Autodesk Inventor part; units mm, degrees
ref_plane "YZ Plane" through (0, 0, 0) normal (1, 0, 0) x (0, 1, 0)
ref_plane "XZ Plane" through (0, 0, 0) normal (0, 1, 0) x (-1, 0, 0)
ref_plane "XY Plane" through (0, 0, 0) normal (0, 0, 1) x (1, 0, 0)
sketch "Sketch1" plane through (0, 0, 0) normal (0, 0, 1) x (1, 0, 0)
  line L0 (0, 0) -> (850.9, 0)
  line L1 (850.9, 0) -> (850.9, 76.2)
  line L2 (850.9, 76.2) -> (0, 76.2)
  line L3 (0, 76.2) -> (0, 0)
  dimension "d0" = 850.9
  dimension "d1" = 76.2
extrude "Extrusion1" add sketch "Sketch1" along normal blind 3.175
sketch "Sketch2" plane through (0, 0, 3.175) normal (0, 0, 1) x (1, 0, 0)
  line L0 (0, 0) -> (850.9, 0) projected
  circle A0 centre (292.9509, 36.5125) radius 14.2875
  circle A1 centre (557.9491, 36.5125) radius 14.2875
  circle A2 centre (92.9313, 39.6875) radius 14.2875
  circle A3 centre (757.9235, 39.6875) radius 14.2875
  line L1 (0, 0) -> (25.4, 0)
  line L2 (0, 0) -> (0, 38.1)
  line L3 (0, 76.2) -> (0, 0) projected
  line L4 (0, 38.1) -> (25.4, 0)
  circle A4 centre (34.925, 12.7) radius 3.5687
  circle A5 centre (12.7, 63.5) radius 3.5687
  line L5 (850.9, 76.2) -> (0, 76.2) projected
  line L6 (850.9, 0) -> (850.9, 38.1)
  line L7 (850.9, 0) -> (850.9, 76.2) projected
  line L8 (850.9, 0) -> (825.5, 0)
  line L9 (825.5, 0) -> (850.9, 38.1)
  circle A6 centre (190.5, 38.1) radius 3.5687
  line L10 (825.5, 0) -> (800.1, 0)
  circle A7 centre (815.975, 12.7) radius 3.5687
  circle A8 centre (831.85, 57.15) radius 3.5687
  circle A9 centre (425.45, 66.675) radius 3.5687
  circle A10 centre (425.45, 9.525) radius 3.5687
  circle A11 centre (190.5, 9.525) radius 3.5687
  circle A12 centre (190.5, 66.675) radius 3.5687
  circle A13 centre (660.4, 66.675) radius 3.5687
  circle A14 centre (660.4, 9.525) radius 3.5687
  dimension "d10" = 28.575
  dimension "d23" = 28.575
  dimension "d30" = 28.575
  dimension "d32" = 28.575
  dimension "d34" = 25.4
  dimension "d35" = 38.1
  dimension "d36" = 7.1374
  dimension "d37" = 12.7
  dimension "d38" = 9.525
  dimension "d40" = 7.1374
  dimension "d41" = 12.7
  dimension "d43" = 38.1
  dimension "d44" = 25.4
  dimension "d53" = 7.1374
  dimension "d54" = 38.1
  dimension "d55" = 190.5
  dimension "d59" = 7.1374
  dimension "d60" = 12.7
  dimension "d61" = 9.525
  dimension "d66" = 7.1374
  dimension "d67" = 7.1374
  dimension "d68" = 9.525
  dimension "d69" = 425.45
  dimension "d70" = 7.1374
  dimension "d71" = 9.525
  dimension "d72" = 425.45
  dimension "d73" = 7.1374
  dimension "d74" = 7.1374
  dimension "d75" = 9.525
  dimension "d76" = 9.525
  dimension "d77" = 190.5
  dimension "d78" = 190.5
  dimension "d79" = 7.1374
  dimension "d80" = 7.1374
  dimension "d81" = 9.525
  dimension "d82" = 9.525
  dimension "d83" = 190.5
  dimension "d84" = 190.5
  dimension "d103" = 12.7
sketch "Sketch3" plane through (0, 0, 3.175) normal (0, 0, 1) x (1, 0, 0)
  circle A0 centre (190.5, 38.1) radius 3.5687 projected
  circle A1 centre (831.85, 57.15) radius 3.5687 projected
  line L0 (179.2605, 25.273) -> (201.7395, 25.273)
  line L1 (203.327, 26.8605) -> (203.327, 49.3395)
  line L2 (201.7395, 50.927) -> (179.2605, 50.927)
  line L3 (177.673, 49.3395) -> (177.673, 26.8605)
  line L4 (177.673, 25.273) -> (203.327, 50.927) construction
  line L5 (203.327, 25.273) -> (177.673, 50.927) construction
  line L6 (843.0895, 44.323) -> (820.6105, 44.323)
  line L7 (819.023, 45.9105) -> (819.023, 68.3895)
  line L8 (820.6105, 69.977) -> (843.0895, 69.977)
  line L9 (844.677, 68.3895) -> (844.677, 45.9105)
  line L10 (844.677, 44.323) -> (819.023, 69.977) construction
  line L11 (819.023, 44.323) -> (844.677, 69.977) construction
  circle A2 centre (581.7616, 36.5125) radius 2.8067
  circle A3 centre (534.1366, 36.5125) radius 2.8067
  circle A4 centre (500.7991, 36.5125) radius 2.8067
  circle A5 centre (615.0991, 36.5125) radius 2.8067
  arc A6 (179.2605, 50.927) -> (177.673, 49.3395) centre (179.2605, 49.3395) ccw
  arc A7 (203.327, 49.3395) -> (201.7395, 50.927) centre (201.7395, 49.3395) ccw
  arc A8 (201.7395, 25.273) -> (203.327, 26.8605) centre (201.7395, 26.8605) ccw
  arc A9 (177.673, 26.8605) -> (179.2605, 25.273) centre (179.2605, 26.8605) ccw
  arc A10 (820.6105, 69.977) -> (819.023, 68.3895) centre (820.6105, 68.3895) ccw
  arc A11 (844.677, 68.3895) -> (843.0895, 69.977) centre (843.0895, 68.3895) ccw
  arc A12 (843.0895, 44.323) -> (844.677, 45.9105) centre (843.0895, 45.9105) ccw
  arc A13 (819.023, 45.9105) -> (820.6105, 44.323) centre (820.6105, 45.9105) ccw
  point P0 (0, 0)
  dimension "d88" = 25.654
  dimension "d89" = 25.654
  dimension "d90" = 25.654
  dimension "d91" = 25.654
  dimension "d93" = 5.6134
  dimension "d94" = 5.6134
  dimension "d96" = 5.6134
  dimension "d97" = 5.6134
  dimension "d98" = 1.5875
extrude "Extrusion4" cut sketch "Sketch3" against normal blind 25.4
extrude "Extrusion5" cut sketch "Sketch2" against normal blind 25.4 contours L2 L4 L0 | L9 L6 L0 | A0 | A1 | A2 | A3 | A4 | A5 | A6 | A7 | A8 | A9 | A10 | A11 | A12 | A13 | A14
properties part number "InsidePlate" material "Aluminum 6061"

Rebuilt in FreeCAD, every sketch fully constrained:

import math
import FreeCAD as App
import Part
import Sketcher

V = App.Vector
Q = App.Units.Quantity


def add_polygon(sketch, points):
    """Adds a closed chain of lines whose ends are joined by coincident constraints."""
    first, n = sketch.GeometryCount, len(points)
    for a, b in zip(points, points[1:] + points[:1]):
        sketch.addGeometry(Part.LineSegment(App.Vector(*a, 0), App.Vector(*b, 0)), False)
    for i in range(n):
        sketch.addConstraint(Sketcher.Constraint("Coincident", first + i, 2, first + (i + 1) % n, 1))

doc = App.newDocument("Part")
params = doc.addObject("Spreadsheet::Sheet", "Params")
for row, (alias, value) in enumerate([
    ("sketch1_height", "3 in"),
    ("sketch1_width", "33.5 in"),
    ("pad1_length", "0.125 in"),
    ("sketch2_diameter", "0.221 in"),
    ("sketch2_radius", "0.0625 in"),
    ("sketch2_diameter2", "0.281 in"),
    ("sketch2_width", "0.885 in"),
    ("pocket1_length", "1 in"),
    ("sketch3_width", "1 in"),
    ("sketch3_diameter", "1.125 in"),
    ("sketch3_diameter2", "0.281 in"),
    ("sketch3_height", "1.5 in"),
    ("pocket2_length", "1 in"),
], start=1):
    params.set(f"A{row}", alias)
    params.set(f"B{row}", "=" + value)
    params.setAlias(f"B{row}", alias)

body = doc.addObject("PartDesign::Body", "Body")
body.AllowCompound = True

# Sketch on XY plane
sketch1 = body.newObject("Sketcher::SketchObject", "Sketch")
sketch1.AttachmentSupport = (doc.getObject("XY_Plane"), [""])
sketch1.MapMode = "FlatFace"
add_polygon(sketch1, [(0, 76.2), (0, 0), (850.9, 0), (850.9, 76.2)])  # lines 0-3
sketch1.addConstraint([
    Sketcher.Constraint("Vertical", 0),
    Sketcher.Constraint("Horizontal", 1),
    Sketcher.Constraint("Vertical", 2),
    Sketcher.Constraint("Horizontal", 3),
    Sketcher.Constraint("Coincident", 0, 2, -1, 1),
    Sketcher.Constraint("DistanceY", 0, 2, 0, 1, Q("3 in")),
    Sketcher.Constraint("DistanceX", 1, 1, 1, 2, Q("33.5 in")),
])
sketch1.setExpression("Constraints[9]", "Params.sketch1_height")
sketch1.setExpression("Constraints[10]", "Params.sketch1_width")
pad1 = body.newObject("PartDesign::Pad", "Pad")
pad1.Profile = sketch1
pad1.setExpression("Length", "Params.pad1_length")

# Sketch on XY plane
sketch2 = body.newObject("Sketcher::SketchObject", "Sketch001")
sketch2.AttachmentSupport = (doc.getObject("XY_Plane"), [""])
sketch2.MapMode = "FlatFace"
sketch2.AttachmentOffset = App.Placement(V(0, 0, 0.125 * 25.4), App.Rotation())
sketch2.addGeometry([
    Part.ArcOfCircle(Part.Circle(V(179.2605, 26.8605, 0), V(0, 0, 1), 1.5875), math.radians(180), math.radians(270)),  # 0
    Part.LineSegment(V(179.2605, 25.273, 0), V(201.7395, 25.273, 0)),  # 1
    Part.ArcOfCircle(Part.Circle(V(201.7395, 26.8605, 0), V(0, 0, 1), 1.5875), math.radians(-90), math.radians(0)),  # 2
    Part.LineSegment(V(203.327, 26.8605, 0), V(203.327, 49.3395, 0)),  # 3
    Part.ArcOfCircle(Part.Circle(V(201.7395, 49.3395, 0), V(0, 0, 1), 1.5875), math.radians(0), math.radians(90)),  # 4
    Part.LineSegment(V(201.7395, 50.927, 0), V(179.2605, 50.927, 0)),  # 5
    Part.ArcOfCircle(Part.Circle(V(179.2605, 49.3395, 0), V(0, 0, 1), 1.5875), math.radians(90), math.radians(180)),  # 6
    Part.LineSegment(V(177.673, 49.3395, 0), V(177.673, 26.8605, 0)),  # 7
    Part.Circle(V(190.5, 38.1, 0), V(0, 0, 1), 3.5687),  # 8
    Part.LineSegment(V(820.6105, 44.323, 0), V(843.0895, 44.323, 0)),  # 9
    Part.ArcOfCircle(Part.Circle(V(843.0895, 45.9105, 0), V(0, 0, 1), 1.5875), math.radians(-90), math.radians(0)),  # 10
    Part.LineSegment(V(844.677, 45.9105, 0), V(844.677, 68.3895, 0)),  # 11
    Part.ArcOfCircle(Part.Circle(V(843.0895, 68.3895, 0), V(0, 0, 1), 1.5875), math.radians(0), math.radians(90)),  # 12
    Part.LineSegment(V(843.0895, 69.977, 0), V(820.6105, 69.977, 0)),  # 13
    Part.ArcOfCircle(Part.Circle(V(820.6105, 68.3895, 0), V(0, 0, 1), 1.5875), math.radians(90), math.radians(180)),  # 14
    Part.LineSegment(V(819.023, 68.3895, 0), V(819.023, 45.9105, 0)),  # 15
    Part.ArcOfCircle(Part.Circle(V(820.6105, 45.9105, 0), V(0, 0, 1), 1.5875), math.radians(180), math.radians(270)),  # 16
    Part.Circle(V(831.85, 57.15, 0), V(0, 0, 1), 3.5687),  # 17
    Part.Circle(V(581.7616, 36.5125, 0), V(0, 0, 1), 2.8067),  # 18
    Part.Circle(V(534.1366, 36.5125, 0), V(0, 0, 1), 2.8067),  # 19
    Part.Circle(V(500.7991, 36.5125, 0), V(0, 0, 1), 2.8067),  # 20
    Part.Circle(V(615.0991, 36.5125, 0), V(0, 0, 1), 2.8067),  # 21
], False)
sketch2.addConstraint([
    Sketcher.Constraint("Tangent", 0, 2, 1, 1),
    Sketcher.Constraint("Tangent", 1, 2, 2, 1),
    Sketcher.Constraint("Tangent", 2, 2, 3, 1),
    Sketcher.Constraint("Tangent", 3, 2, 4, 1),
    Sketcher.Constraint("Tangent", 4, 2, 5, 1),
    Sketcher.Constraint("Tangent", 5, 2, 6, 1),
    Sketcher.Constraint("Tangent", 6, 2, 7, 1),
    Sketcher.Constraint("Tangent", 7, 2, 0, 1),
    Sketcher.Constraint("Tangent", 9, 2, 10, 1),
    Sketcher.Constraint("Tangent", 10, 2, 11, 1),
    Sketcher.Constraint("Tangent", 11, 2, 12, 1),
    Sketcher.Constraint("Tangent", 12, 2, 13, 1),
    Sketcher.Constraint("Tangent", 13, 2, 14, 1),
    Sketcher.Constraint("Tangent", 14, 2, 15, 1),
    Sketcher.Constraint("Tangent", 15, 2, 16, 1),
    Sketcher.Constraint("Tangent", 16, 2, 9, 1),
    Sketcher.Constraint("Horizontal", 1),
    Sketcher.Constraint("Vertical", 3),
    Sketcher.Constraint("Horizontal", 5),
    Sketcher.Constraint("Vertical", 7),
    Sketcher.Constraint("Horizontal", 9),
    Sketcher.Constraint("Vertical", 11),
    Sketcher.Constraint("Horizontal", 13),
    Sketcher.Constraint("Vertical", 15),
    Sketcher.Constraint("Equal", 0, 2),
    Sketcher.Constraint("Equal", 2, 4),
    Sketcher.Constraint("Equal", 4, 6),
    Sketcher.Constraint("Equal", 6, 10),
    Sketcher.Constraint("Equal", 10, 12),
    Sketcher.Constraint("Equal", 12, 14),
    Sketcher.Constraint("Equal", 14, 16),
    Sketcher.Constraint("Equal", 8, 17),
    Sketcher.Constraint("Equal", 18, 19),
    Sketcher.Constraint("Equal", 19, 20),
    Sketcher.Constraint("Equal", 20, 21),
    Sketcher.Constraint("Horizontal", 18, 3, 19, 3),
    Sketcher.Constraint("Horizontal", 19, 3, 20, 3),
    Sketcher.Constraint("Horizontal", 20, 3, 21, 3),
    Sketcher.Constraint("Equal", 5, 9),
    Sketcher.Constraint("Equal", 13, 3),
    Sketcher.Constraint("Equal", 7, 11),
    Sketcher.Constraint("Diameter", 18, Q("0.221 in")),
    Sketcher.Constraint("Radius", 0, Q("0.0625 in")),
    Sketcher.Constraint("Diameter", 8, Q("0.281 in")),
    Sketcher.Constraint("DistanceY", 20, 3, 8, 3, Q("0.0625 in")),
    Sketcher.Constraint("DistanceX", -1, 1, 8, 3, Q("7.5 in")),
    Sketcher.Constraint("DistanceY", -1, 1, 8, 3, Q("1.5 in")),
    Sketcher.Constraint("DistanceX", 20, 3, 21, 3, Q("4.5 in")),
    Sketcher.Constraint("DistanceX", 1, 1, 1, 2, Q("0.885 in")),
    Sketcher.Constraint("DistanceX", -1, 1, 17, 3, Q("32.75 in")),
    Sketcher.Constraint("DistanceY", -1, 1, 17, 3, Q("2.25 in")),
    Sketcher.Constraint("DistanceX", 4, 3, 10, 3, Q("25.25 in")),
    Sketcher.Constraint("DistanceY", 2, 3, 10, 3, Q("0.75 in")),
    Sketcher.Constraint("DistanceY", 18, 3, 16, 3, Q("0.37 in")),
    Sketcher.Constraint("DistanceX", -1, 1, 18, 3, Q("22.904 in")),
    Sketcher.Constraint("DistanceX", -1, 1, 19, 3, Q("21.029 in")),
    Sketcher.Constraint("DistanceX", -1, 1, 2, 2, Q("8.005 in")),
    Sketcher.Constraint("DistanceX", 20, 3, 19, 3, Q("1.3125 in")),
])
sketch2.setExpression("Constraints[41]", "Params.sketch2_diameter")
sketch2.setExpression("Constraints[42]", "Params.sketch2_radius")
sketch2.setExpression("Constraints[43]", "Params.sketch2_diameter2")
sketch2.setExpression("Constraints[48]", "Params.sketch2_width")
pocket1 = body.newObject("PartDesign::Pocket", "Pocket")
pocket1.Profile = sketch2
pocket1.setExpression("Length", "Params.pocket1_length")

# Sketch on XY plane
sketch3 = body.newObject("Sketcher::SketchObject", "Sketch002")
sketch3.AttachmentSupport = (doc.getObject("XY_Plane"), [""])
sketch3.MapMode = "FlatFace"
sketch3.AttachmentOffset = App.Placement(V(0, 0, 0.125 * 25.4), App.Rotation())
add_polygon(sketch3, [(0, 38.1), (0, 0), (25.4, 0)])  # lines 0-2
add_polygon(sketch3, [(850.9, 38.1), (825.5, 0), (850.9, 0)])  # lines 3-5
sketch3.addGeometry(Part.Circle(V(292.9509, 36.5125, 0), V(0, 0, 1), 14.2875), False)  # 6
sketch3.addGeometry(Part.Circle(V(557.9491, 36.5125, 0), V(0, 0, 1), 14.2875), False)  # 7
sketch3.addGeometry(Part.Circle(V(92.9313, 39.6875, 0), V(0, 0, 1), 14.2875), False)  # 8
sketch3.addGeometry(Part.Circle(V(757.9235, 39.6875, 0), V(0, 0, 1), 14.2875), False)  # 9
sketch3.addGeometry(Part.Circle(V(34.925, 12.7, 0), V(0, 0, 1), 3.5687), False)  # 10
sketch3.addGeometry(Part.Circle(V(12.7, 63.5, 0), V(0, 0, 1), 3.5687), False)  # 11
sketch3.addGeometry(Part.Circle(V(190.5, 38.1, 0), V(0, 0, 1), 3.5687), False)  # 12
sketch3.addGeometry(Part.Circle(V(815.975, 12.7, 0), V(0, 0, 1), 3.5687), False)  # 13
sketch3.addGeometry(Part.Circle(V(831.85, 57.15, 0), V(0, 0, 1), 3.5687), False)  # 14
sketch3.addGeometry(Part.Circle(V(425.45, 66.675, 0), V(0, 0, 1), 3.5687), False)  # 15
sketch3.addGeometry(Part.Circle(V(425.45, 9.525, 0), V(0, 0, 1), 3.5687), False)  # 16
sketch3.addGeometry(Part.Circle(V(190.5, 9.525, 0), V(0, 0, 1), 3.5687), False)  # 17
sketch3.addGeometry(Part.Circle(V(190.5, 66.675, 0), V(0, 0, 1), 3.5687), False)  # 18
sketch3.addGeometry(Part.Circle(V(660.4, 66.675, 0), V(0, 0, 1), 3.5687), False)  # 19
sketch3.addGeometry(Part.Circle(V(660.4, 9.525, 0), V(0, 0, 1), 3.5687), False)  # 20
sketch3.addConstraint([
    Sketcher.Constraint("Vertical", 0),
    Sketcher.Constraint("Horizontal", 1),
    Sketcher.Constraint("Horizontal", 4),
    Sketcher.Constraint("Vertical", 5),
    Sketcher.Constraint("Coincident", 0, 2, -1, 1),
    Sketcher.Constraint("Equal", 6, 7),
    Sketcher.Constraint("Equal", 7, 8),
    Sketcher.Constraint("Equal", 8, 9),
    Sketcher.Constraint("Equal", 10, 11),
    Sketcher.Constraint("Equal", 11, 12),
    Sketcher.Constraint("Equal", 12, 13),
    Sketcher.Constraint("Equal", 13, 14),
    Sketcher.Constraint("Equal", 14, 15),
    Sketcher.Constraint("Equal", 15, 16),
    Sketcher.Constraint("Equal", 16, 17),
    Sketcher.Constraint("Equal", 17, 18),
    Sketcher.Constraint("Equal", 18, 19),
    Sketcher.Constraint("Equal", 19, 20),
    Sketcher.Constraint("PointOnObject", 3, 2, -1),
    Sketcher.Constraint("Horizontal", 6, 3, 7, 3),
    Sketcher.Constraint("Horizontal", 8, 3, 9, 3),
    Sketcher.Constraint("Horizontal", 10, 3, 13, 3),
    Sketcher.Constraint("Horizontal", 16, 3, 17, 3),
    Sketcher.Constraint("Horizontal", 15, 3, 18, 3),
    Sketcher.Constraint("Horizontal", 18, 3, 19, 3),
    Sketcher.Constraint("Horizontal", 17, 3, 20, 3),
    Sketcher.Constraint("Horizontal", 12, 3, 2, 2),
    Sketcher.Constraint("Horizontal", 2, 2, 5, 2),
    Sketcher.Constraint("Vertical", 15, 3, 16, 3),
    Sketcher.Constraint("Vertical", 12, 3, 17, 3),
    Sketcher.Constraint("Vertical", 17, 3, 18, 3),
    Sketcher.Constraint("Vertical", 19, 3, 20, 3),
    Sketcher.Constraint("Equal", 1, 4),
    Sketcher.Constraint("DistanceX", 1, 1, 1, 2, Q("1 in")),
    Sketcher.Constraint("Diameter", 6, Q("1.125 in")),
    Sketcher.Constraint("Diameter", 10, Q("0.281 in")),
    Sketcher.Constraint("DistanceY", 0, 2, 0, 1, Q("1.5 in")),
    Sketcher.Constraint("DistanceY", 10, 3, 12, 3, Q("1 in")),
    Sketcher.Constraint("DistanceY", 12, 3, 11, 3, Q("1 in")),
    Sketcher.Constraint("DistanceX", -1, 1, 11, 3, Q("0.5 in")),
    Sketcher.Constraint("DistanceX", -1, 1, 12, 3, Q("7.5 in")),
    Sketcher.Constraint("DistanceX", 20, 3, 4, 2, Q("7.5 in")),
    Sketcher.Constraint("DistanceX", -1, 1, 15, 3, Q("16.75 in")),
    Sketcher.Constraint("DistanceY", -1, 1, 16, 3, Q("0.375 in")),
    Sketcher.Constraint("DistanceX", -1, 1, 19, 3, Q("26 in")),
    Sketcher.Constraint("DistanceY", 12, 3, 15, 3, Q("1.125 in")),
    Sketcher.Constraint("DistanceY", 14, 3, 19, 3, Q("0.375 in")),
    Sketcher.Constraint("DistanceX", 1, 2, 10, 3, Q("0.375 in")),
    Sketcher.Constraint("DistanceX", 13, 3, 3, 2, Q("0.375 in")),
    Sketcher.Constraint("DistanceX", -1, 1, 14, 3, Q("32.75 in")),
    Sketcher.Constraint("DistanceY", -1, 1, 6, 3, Q("1.4375 in")),
    Sketcher.Constraint("DistanceY", -1, 1, 8, 3, Q("1.5625 in")),
    Sketcher.Constraint("DistanceX", 6, 3, 7, 3, Q("10.433 in")),
    Sketcher.Constraint("DistanceX", 7, 3, 9, 3, Q("7.873 in")),
    Sketcher.Constraint("DistanceX", -1, 1, 6, 3, Q("11.5335 in")),
    Sketcher.Constraint("DistanceX", 8, 3, 9, 3, Q("26.1808 in")),
])
sketch3.setExpression("Constraints[39]", "Params.sketch3_width")
sketch3.setExpression("Constraints[40]", "Params.sketch3_diameter")
sketch3.setExpression("Constraints[41]", "Params.sketch3_diameter2")
sketch3.setExpression("Constraints[42]", "Params.sketch3_height")
pocket2 = body.newObject("PartDesign::Pocket", "Pocket001")
pocket2.Profile = sketch3
pocket2.setExpression("Length", "Params.pocket2_length")

doc.recompute()
